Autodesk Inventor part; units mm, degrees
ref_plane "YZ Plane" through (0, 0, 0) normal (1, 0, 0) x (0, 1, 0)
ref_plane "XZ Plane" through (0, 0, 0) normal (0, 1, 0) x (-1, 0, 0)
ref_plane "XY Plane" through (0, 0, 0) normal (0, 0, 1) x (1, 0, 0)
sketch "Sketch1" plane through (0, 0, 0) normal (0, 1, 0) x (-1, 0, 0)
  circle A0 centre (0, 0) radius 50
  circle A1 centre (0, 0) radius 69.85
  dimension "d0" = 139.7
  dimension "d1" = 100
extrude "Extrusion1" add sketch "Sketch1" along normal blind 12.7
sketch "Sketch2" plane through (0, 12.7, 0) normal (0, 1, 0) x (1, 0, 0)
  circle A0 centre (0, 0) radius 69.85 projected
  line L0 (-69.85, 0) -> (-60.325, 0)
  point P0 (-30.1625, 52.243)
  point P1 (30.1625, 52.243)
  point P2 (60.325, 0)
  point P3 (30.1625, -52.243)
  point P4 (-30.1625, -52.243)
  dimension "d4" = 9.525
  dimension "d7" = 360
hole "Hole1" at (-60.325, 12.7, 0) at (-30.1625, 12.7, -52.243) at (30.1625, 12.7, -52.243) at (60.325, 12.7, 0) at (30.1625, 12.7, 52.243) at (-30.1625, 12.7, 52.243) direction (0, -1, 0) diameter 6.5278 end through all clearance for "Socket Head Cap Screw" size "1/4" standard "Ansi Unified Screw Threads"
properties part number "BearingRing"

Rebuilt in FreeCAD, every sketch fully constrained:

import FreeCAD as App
import Part
import Sketcher

V = App.Vector
Q = App.Units.Quantity

doc = App.newDocument("Part")
body = doc.addObject("PartDesign::Body", "Body")

# Sketch on XZ plane
sketch1 = body.newObject("Sketcher::SketchObject", "Sketch")
sketch1.AttachmentSupport = (doc.getObject("XZ_Plane"), [""])
sketch1.MapMode = "FlatFace"
sketch1.addGeometry([
    Part.Circle(V(0, 0, 0), V(0, 0, 1), 69.85),
    Part.Circle(V(0, 0, 0), V(0, 0, 1), 50),
], False)
sketch1.addConstraint([
    Sketcher.Constraint("Coincident", 0, 3, -1, 1),
    Sketcher.Constraint("Coincident", 1, 3, -1, 1),
    Sketcher.Constraint("Diameter", 0, Q("5.5 in")),
    Sketcher.Constraint("Diameter", 1, Q("3.937 in")),
])
pad1 = body.newObject("PartDesign::Pad", "Pad")
pad1.Profile = sketch1
pad1.Length = Q("0.5 in")
pad1.Reversed = True

# Sketch on XZ plane
sketch2 = body.newObject("Sketcher::SketchObject", "Sketch001")
sketch2.AttachmentSupport = (doc.getObject("XZ_Plane"), [""])
sketch2.MapMode = "FlatFace"
sketch2.AttachmentOffset = App.Placement(V(0, 0, -0.5 * 25.4), App.Rotation())
sketch2.addGeometry([
    Part.Circle(V(-60.325, 0, 0), V(0, 0, 1), 3.2639),  # 0
    Part.Circle(V(-30.1625, -52.243, 0), V(0, 0, 1), 3.2639),  # 1
    Part.Circle(V(30.1625, -52.243, 0), V(0, 0, 1), 3.2639),  # 2
    Part.Circle(V(60.325, 0, 0), V(0, 0, 1), 3.2639),  # 3
    Part.Circle(V(30.1625, 52.243, 0), V(0, 0, 1), 3.2639),  # 4
    Part.Circle(V(-30.1625, 52.243, 0), V(0, 0, 1), 3.2639),  # 5
], False)
sketch2.addConstraint([
    Sketcher.Constraint("Equal", 0, 1),
    Sketcher.Constraint("Equal", 1, 2),
    Sketcher.Constraint("Equal", 2, 3),
    Sketcher.Constraint("Equal", 3, 4),
    Sketcher.Constraint("Equal", 4, 5),
    Sketcher.Constraint("Symmetric", 0, 3, 3, 3, -1, 1),
    Sketcher.Constraint("Symmetric", 1, 3, 4, 3, -1, 1),
    Sketcher.Constraint("Symmetric", 2, 3, 5, 3, -1, 1),
    Sketcher.Constraint("Symmetric", 1, 3, 2, 3, -2),
    Sketcher.Constraint("PointOnObject", 0, 3, -1),
    Sketcher.Constraint("Diameter", 0, Q("0.257 in")),
    Sketcher.Constraint("DistanceX", 0, 3, 3, 3, Q("4.75 in")),
    Sketcher.Constraint("DistanceX", 1, 3, -1, 1, Q("1.1875 in")),
    Sketcher.Constraint("DistanceY", 1, 3, -1, 1, Q("2.0568 in")),
])
doc.recompute()
hole = body.newObject("PartDesign::Hole", "Hole")
hole.Profile = sketch2
hole.ThreadType = "None"
hole.Diameter = Q("0.257 in")
hole.DepthType = "ThroughAll"
hole.Reversed = True

doc.recompute()
